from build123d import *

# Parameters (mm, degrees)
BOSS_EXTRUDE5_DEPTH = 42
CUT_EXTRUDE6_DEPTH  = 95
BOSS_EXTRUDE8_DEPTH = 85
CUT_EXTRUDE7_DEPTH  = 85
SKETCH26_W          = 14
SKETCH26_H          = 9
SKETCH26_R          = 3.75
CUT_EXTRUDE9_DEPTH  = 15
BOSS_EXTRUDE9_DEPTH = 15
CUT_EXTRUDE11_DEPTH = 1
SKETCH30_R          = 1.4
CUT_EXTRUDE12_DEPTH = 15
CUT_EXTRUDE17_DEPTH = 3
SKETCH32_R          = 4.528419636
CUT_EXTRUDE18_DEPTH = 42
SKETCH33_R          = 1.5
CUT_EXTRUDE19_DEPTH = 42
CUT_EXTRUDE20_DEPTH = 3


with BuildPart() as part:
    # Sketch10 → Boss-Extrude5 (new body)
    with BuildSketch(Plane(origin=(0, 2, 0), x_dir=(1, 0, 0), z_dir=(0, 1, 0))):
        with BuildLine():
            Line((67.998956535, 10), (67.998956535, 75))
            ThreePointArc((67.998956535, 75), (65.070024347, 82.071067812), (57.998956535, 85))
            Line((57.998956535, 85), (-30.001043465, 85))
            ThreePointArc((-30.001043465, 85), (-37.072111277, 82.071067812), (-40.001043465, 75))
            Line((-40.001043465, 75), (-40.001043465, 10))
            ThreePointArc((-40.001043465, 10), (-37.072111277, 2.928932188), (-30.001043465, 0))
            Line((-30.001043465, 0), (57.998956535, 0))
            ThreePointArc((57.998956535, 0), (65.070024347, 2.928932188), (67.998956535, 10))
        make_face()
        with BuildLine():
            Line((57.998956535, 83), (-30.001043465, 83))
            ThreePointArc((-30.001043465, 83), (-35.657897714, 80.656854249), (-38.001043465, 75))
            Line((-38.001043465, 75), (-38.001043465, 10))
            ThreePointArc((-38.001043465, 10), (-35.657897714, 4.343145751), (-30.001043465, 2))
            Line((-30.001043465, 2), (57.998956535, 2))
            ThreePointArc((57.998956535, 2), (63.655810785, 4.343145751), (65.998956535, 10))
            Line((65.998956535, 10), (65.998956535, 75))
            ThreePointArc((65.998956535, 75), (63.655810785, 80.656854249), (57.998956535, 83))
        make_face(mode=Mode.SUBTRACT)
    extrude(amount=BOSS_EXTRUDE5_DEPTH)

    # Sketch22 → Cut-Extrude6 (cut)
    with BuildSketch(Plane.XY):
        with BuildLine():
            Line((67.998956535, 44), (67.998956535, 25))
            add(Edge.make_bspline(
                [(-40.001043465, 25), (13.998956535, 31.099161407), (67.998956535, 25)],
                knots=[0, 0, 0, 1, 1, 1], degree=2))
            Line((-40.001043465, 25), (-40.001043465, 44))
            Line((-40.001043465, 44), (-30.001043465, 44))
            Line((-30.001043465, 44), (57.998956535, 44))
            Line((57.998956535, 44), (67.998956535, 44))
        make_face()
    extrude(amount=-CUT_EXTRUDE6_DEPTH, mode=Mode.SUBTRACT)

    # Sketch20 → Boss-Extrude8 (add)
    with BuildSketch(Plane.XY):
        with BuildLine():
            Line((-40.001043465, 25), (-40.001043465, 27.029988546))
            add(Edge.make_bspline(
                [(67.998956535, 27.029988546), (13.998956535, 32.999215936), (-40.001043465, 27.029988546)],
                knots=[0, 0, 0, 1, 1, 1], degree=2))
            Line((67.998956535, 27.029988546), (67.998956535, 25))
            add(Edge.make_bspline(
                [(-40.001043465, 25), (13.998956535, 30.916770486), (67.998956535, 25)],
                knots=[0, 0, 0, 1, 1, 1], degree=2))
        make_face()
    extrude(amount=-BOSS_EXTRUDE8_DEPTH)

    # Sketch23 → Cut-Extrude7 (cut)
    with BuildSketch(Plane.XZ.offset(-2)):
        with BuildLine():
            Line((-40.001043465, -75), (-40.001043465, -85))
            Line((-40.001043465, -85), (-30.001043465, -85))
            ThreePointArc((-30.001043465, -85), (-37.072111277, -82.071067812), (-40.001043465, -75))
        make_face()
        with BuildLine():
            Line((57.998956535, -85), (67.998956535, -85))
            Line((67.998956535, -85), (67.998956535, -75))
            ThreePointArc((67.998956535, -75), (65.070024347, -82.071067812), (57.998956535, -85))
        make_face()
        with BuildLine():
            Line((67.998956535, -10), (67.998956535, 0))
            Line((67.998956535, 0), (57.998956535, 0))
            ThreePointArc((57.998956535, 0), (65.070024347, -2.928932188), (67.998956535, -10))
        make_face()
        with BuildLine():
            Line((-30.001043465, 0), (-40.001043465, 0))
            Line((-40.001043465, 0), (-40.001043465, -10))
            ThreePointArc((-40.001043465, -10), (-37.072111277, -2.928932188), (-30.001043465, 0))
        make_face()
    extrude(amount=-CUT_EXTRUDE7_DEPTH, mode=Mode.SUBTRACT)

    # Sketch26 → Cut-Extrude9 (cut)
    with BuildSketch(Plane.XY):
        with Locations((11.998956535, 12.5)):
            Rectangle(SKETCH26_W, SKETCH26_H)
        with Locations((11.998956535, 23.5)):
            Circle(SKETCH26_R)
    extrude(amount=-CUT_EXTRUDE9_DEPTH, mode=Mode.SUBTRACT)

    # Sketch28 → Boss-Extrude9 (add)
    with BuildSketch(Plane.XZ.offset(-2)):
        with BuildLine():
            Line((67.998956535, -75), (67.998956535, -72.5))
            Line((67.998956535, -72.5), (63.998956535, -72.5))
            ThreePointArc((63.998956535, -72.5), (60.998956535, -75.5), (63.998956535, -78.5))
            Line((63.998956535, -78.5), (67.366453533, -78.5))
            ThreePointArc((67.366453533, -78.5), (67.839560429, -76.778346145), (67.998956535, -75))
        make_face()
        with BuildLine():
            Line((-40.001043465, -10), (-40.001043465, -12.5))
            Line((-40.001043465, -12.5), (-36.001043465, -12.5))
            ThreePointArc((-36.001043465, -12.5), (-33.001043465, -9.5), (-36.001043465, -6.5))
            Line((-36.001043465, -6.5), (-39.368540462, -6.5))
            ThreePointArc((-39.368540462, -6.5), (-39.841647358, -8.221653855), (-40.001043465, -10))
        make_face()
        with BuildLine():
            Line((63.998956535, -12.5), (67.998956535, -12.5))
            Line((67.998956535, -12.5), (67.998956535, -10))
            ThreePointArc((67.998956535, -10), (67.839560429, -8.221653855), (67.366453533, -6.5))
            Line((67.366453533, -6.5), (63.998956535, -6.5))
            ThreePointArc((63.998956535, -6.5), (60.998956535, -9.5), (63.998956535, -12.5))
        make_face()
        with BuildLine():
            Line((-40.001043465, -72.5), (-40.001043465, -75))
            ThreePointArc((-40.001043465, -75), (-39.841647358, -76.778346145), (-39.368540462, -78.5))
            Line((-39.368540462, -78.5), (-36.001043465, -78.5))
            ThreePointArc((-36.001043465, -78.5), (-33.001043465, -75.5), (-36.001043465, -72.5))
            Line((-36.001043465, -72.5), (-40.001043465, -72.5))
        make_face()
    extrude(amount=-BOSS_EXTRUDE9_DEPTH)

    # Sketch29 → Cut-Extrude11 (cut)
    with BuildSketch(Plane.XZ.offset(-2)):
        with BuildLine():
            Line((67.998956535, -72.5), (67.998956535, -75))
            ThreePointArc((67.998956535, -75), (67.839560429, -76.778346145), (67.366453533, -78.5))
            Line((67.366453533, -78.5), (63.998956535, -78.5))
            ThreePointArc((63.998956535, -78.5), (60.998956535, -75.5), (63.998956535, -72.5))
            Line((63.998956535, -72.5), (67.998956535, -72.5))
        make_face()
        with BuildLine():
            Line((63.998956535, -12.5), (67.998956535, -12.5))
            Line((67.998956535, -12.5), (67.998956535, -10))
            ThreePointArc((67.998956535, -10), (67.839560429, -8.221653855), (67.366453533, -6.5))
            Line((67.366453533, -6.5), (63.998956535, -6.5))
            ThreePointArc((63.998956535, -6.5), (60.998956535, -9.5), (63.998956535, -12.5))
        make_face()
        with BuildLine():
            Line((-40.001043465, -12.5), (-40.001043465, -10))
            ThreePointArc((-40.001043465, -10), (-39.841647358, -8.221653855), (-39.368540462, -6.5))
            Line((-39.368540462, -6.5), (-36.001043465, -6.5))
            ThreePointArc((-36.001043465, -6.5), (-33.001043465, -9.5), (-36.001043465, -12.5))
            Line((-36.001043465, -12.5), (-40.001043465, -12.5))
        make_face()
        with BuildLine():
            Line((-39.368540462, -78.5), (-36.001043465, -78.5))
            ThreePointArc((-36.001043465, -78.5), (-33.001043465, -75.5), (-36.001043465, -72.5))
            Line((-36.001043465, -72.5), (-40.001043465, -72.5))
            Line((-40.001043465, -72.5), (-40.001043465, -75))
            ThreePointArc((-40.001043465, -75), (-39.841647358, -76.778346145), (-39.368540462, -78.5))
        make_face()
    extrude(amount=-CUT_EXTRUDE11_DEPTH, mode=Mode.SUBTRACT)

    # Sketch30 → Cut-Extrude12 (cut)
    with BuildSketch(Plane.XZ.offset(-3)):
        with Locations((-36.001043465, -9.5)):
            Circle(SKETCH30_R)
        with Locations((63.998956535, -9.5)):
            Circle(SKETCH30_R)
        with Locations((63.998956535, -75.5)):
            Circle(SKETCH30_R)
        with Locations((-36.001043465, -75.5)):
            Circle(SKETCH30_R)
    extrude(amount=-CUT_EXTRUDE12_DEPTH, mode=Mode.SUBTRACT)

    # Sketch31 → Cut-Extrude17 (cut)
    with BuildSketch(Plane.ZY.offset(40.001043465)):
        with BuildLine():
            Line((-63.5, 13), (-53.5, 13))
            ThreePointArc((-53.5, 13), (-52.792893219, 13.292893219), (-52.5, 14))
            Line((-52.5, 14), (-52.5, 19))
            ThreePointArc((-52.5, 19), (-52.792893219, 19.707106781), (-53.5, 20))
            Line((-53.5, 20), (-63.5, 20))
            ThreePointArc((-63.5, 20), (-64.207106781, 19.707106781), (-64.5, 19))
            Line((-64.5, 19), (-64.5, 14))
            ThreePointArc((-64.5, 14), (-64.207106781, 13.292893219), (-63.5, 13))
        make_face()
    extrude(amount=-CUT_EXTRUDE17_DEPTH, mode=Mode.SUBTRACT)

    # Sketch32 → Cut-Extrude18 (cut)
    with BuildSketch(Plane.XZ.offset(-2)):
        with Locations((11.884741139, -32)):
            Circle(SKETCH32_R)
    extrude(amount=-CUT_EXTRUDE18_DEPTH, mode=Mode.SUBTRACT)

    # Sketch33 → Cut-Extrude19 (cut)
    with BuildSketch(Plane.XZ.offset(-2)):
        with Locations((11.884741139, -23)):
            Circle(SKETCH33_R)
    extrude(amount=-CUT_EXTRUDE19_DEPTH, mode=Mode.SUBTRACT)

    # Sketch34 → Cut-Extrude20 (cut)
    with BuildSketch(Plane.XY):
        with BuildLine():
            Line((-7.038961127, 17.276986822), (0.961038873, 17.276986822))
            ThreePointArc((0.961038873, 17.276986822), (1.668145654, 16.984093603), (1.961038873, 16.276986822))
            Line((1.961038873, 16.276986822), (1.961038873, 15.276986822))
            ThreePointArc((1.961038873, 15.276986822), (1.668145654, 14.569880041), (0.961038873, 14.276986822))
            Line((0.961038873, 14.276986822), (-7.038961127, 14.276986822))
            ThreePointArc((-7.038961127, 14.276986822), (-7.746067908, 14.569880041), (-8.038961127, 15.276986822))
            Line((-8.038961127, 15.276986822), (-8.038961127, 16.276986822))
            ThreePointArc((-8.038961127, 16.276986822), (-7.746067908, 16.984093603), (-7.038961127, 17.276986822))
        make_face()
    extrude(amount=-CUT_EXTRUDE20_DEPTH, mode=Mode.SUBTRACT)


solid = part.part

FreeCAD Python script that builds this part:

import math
import FreeCAD as App
import Part
import Sketcher

doc = App.newDocument("Part")
params = doc.addObject("Spreadsheet::Sheet", "Params")
for row, (alias, value) in enumerate([
    ("sketch1_radius", "10 mm"),
    ("sketch1_radius2", "8 mm"),
    ("sketch1_width", "88 mm"),
    ("sketch1_height", "65 mm"),
    ("pad1_length", "42 mm"),
    ("sketch2_height", "19 mm"),
    ("pocket1_length", "95 mm"),
    ("pad2_length", "85 mm"),
    ("sketch4_radius", "10 mm"),
    ("pocket2_length", "85 mm"),
    ("sketch5_diameter", "7.5 mm"),
    ("sketch5_width", "14 mm"),
    ("sketch5_height", "9 mm"),
    ("pocket3_length", "15 mm"),
    ("sketch6_radius", "3 mm"),
    ("sketch6_radius2", "10 mm"),
    ("sketch6_width", "4 mm"),
    ("sketch6_height", "2.5 mm"),
    ("pad3_length", "15 mm"),
    ("sketch7_radius", "3 mm"),
    ("sketch7_radius2", "10 mm"),
    ("sketch7_width", "4 mm"),
    ("sketch7_height", "2.5 mm"),
    ("pocket4_length", "1 mm"),
    ("sketch8_diameter", "2.8 mm"),
    ("pocket5_length", "15 mm"),
    ("sketch9_radius", "1 mm"),
    ("sketch9_width", "5 mm"),
    ("sketch9_height", "10 mm"),
    ("pocket6_length", "3 mm"),
    ("pocket7_length", "42 mm"),
    ("sketch11_diameter", "3 mm"),
    ("pocket8_length", "42 mm"),
    ("sketch12_radius", "1 mm"),
    ("sketch12_width", "8 mm"),
    ("sketch12_height", "1 mm"),
    ("pocket9_length", "3 mm"),
], start=1):
    params.set(f"A{row}", alias)
    params.set(f"B{row}", "=" + value)
    params.setAlias(f"B{row}", alias)

body = doc.addObject("PartDesign::Body", "Body")

# Sketch on XZ plane
sketch1 = body.newObject("Sketcher::SketchObject", "Sketch")
sketch1.AttachmentSupport = (doc.getObject("XZ_Plane"), [""])
sketch1.MapMode = "FlatFace"
sketch1.AttachmentOffset = App.Placement(App.Vector(0, 0, -2), App.Rotation())
sketch1.addGeometry(Part.LineSegment(App.Vector(67.998957, -10, 0), App.Vector(67.998957, -75, 0)), False)
sketch1.addGeometry(Part.ArcOfCircle(Part.Circle(App.Vector(57.998957, -75, 0), App.Vector(0, 0, 1), 10), math.radians(-90), math.radians(0)), False)
sketch1.addGeometry(Part.LineSegment(App.Vector(57.998957, -85, 0), App.Vector(-30.001043, -85, 0)), False)
sketch1.addGeometry(Part.ArcOfCircle(Part.Circle(App.Vector(-30.001043, -75, 0), App.Vector(0, 0, 1), 10), math.radians(180), math.radians(270)), False)
sketch1.addGeometry(Part.LineSegment(App.Vector(-40.001043, -75, 0), App.Vector(-40.001043, -10, 0)), False)
sketch1.addGeometry(Part.ArcOfCircle(Part.Circle(App.Vector(-30.001043, -10, 0), App.Vector(0, 0, 1), 10), math.radians(90), math.radians(180)), False)
sketch1.addGeometry(Part.LineSegment(App.Vector(-30.001043, 0, 0), App.Vector(57.998957, 0, 0)), False)
sketch1.addGeometry(Part.ArcOfCircle(Part.Circle(App.Vector(57.998957, -10, 0), App.Vector(0, 0, 1), 10), math.radians(0), math.radians(90)), False)
sketch1.addGeometry(Part.LineSegment(App.Vector(-30.001043, -83, 0), App.Vector(57.998957, -83, 0)), False)
sketch1.addGeometry(Part.ArcOfCircle(Part.Circle(App.Vector(57.998957, -75, 0), App.Vector(0, 0, 1), 8), math.radians(-90), math.radians(0)), False)
sketch1.addGeometry(Part.LineSegment(App.Vector(65.998957, -75, 0), App.Vector(65.998957, -10, 0)), False)
sketch1.addGeometry(Part.ArcOfCircle(Part.Circle(App.Vector(57.998957, -10, 0), App.Vector(0, 0, 1), 8), math.radians(0), math.radians(90)), False)
sketch1.addGeometry(Part.LineSegment(App.Vector(57.998957, -2, 0), App.Vector(-30.001043, -2, 0)), False)
sketch1.addGeometry(Part.ArcOfCircle(Part.Circle(App.Vector(-30.001043, -10, 0), App.Vector(0, 0, 1), 8), math.radians(90), math.radians(180)), False)
sketch1.addGeometry(Part.LineSegment(App.Vector(-38.001043, -10, 0), App.Vector(-38.001043, -75, 0)), False)
sketch1.addGeometry(Part.ArcOfCircle(Part.Circle(App.Vector(-30.001043, -75, 0), App.Vector(0, 0, 1), 8), math.radians(-180), math.radians(-90)), False)
sketch1.addConstraint(Sketcher.Constraint("Tangent", 0, 2, 1, 2))
sketch1.addConstraint(Sketcher.Constraint("Tangent", 1, 1, 2, 1))
sketch1.addConstraint(Sketcher.Constraint("Tangent", 2, 2, 3, 2))
sketch1.addConstraint(Sketcher.Constraint("Tangent", 3, 1, 4, 1))
sketch1.addConstraint(Sketcher.Constraint("Tangent", 4, 2, 5, 2))
sketch1.addConstraint(Sketcher.Constraint("Tangent", 5, 1, 6, 1))
sketch1.addConstraint(Sketcher.Constraint("Tangent", 6, 2, 7, 2))
sketch1.addConstraint(Sketcher.Constraint("Tangent", 7, 1, 0, 1))
sketch1.addConstraint(Sketcher.Constraint("Tangent", 8, 2, 9, 1))
sketch1.addConstraint(Sketcher.Constraint("Tangent", 9, 2, 10, 1))
sketch1.addConstraint(Sketcher.Constraint("Tangent", 10, 2, 11, 1))
sketch1.addConstraint(Sketcher.Constraint("Tangent", 11, 2, 12, 1))
sketch1.addConstraint(Sketcher.Constraint("Tangent", 12, 2, 13, 1))
sketch1.addConstraint(Sketcher.Constraint("Tangent", 13, 2, 14, 1))
sketch1.addConstraint(Sketcher.Constraint("Tangent", 14, 2, 15, 1))
sketch1.addConstraint(Sketcher.Constraint("Tangent", 15, 2, 8, 1))
sketch1.addConstraint(Sketcher.Constraint("Vertical", 0))
sketch1.addConstraint(Sketcher.Constraint("Horizontal", 2))
sketch1.addConstraint(Sketcher.Constraint("Vertical", 4))
sketch1.addConstraint(Sketcher.Constraint("Horizontal", 6))
sketch1.addConstraint(Sketcher.Constraint("Horizontal", 8))
sketch1.addConstraint(Sketcher.Constraint("Vertical", 10))
sketch1.addConstraint(Sketcher.Constraint("Horizontal", 12))
sketch1.addConstraint(Sketcher.Constraint("Vertical", 14))
sketch1.addConstraint(Sketcher.Constraint("Coincident", 9, 3, 1, 3))
sketch1.addConstraint(Sketcher.Constraint("Coincident", 11, 3, 7, 3))
sketch1.addConstraint(Sketcher.Constraint("Coincident", 13, 3, 5, 3))
sketch1.addConstraint(Sketcher.Constraint("Equal", 1, 3))
sketch1.addConstraint(Sketcher.Constraint("Equal", 3, 5))
sketch1.addConstraint(Sketcher.Constraint("Equal", 5, 7))
sketch1.addConstraint(Sketcher.Constraint("Equal", 13, 15))
sketch1.addConstraint(Sketcher.Constraint("PointOnObject", 5, 1, -1))
sketch1.addConstraint(Sketcher.Constraint("Radius", 1, 10.0))
sketch1.addConstraint(Sketcher.Constraint("Radius", 9, 8.0))
sketch1.addConstraint(Sketcher.Constraint("DistanceX", 2, 2, 2, 1, 88.0))
sketch1.addConstraint(Sketcher.Constraint("DistanceY", 0, 2, 0, 1, 65.0))
sketch1.addConstraint(Sketcher.Constraint("DistanceX", -1, 1, 1, 3, 57.998957))
sketch1.setExpression("Constraints[32]", "Params.sketch1_radius")
sketch1.setExpression("Constraints[33]", "Params.sketch1_radius2")
sketch1.setExpression("Constraints[34]", "Params.sketch1_width")
sketch1.setExpression("Constraints[35]", "Params.sketch1_height")
pad1 = body.newObject("PartDesign::Pad", "Pad")
pad1.Profile = sketch1
pad1.setExpression("Length", "Params.pad1_length")
pad1.Reversed = True

# Sketch on XY plane
sketch2 = body.newObject("Sketcher::SketchObject", "Sketch001")
sketch2.AttachmentSupport = (doc.getObject("XY_Plane"), [""])
sketch2.MapMode = "FlatFace"
sketch2.addGeometry(Part.LineSegment(App.Vector(67.998957, 25, 0), App.Vector(67.998957, 44, 0)), False)
sketch2.addGeometry(Part.LineSegment(App.Vector(67.998957, 44, 0), App.Vector(-40.001043, 44, 0)), False)
sketch2.addGeometry(Part.LineSegment(App.Vector(-40.001043, 44, 0), App.Vector(-40.001043, 25, 0)), False)
sketch2.addGeometry(Part.BSplineCurve([App.Vector(-40.001043, 25, 0), App.Vector(13.998957, 31.099161, 0), App.Vector(67.998957, 25, 0)], [3, 3], [0, 1], False, 2, [1, 1, 1], False), False)
sketch2.addConstraint(Sketcher.Constraint("Block", 3))
sketch2.addConstraint(Sketcher.Constraint("Coincident", 0, 2, 1, 1))
sketch2.addConstraint(Sketcher.Constraint("Coincident", 1, 2, 2, 1))
sketch2.addConstraint(Sketcher.Constraint("Coincident", 2, 2, 3, 1))
sketch2.addConstraint(Sketcher.Constraint("Coincident", 3, 2, 0, 1))
sketch2.addConstraint(Sketcher.Constraint("Vertical", 0))
sketch2.addConstraint(Sketcher.Constraint("Horizontal", 1))
sketch2.addConstraint(Sketcher.Constraint("Vertical", 2))
sketch2.addConstraint(Sketcher.Constraint("DistanceY", 0, 1, 0, 2, 19.0))
sketch2.setExpression("Constraints[8]", "Params.sketch2_height")
pocket1 = body.newObject("PartDesign::Pocket", "Pocket")
pocket1.Profile = sketch2
pocket1.setExpression("Length", "Params.pocket1_length")

# Sketch on XY plane
sketch3 = body.newObject("Sketcher::SketchObject", "Sketch002")
sketch3.AttachmentSupport = (doc.getObject("XY_Plane"), [""])
sketch3.MapMode = "FlatFace"
sketch3.addGeometry(Part.LineSegment(App.Vector(-40.001043, 27.029989, 0), App.Vector(-40.001043, 25, 0)), False)
sketch3.addGeometry(Part.BSplineCurve([App.Vector(-40.001043, 25, 0), App.Vector(13.998957, 30.91677, 0), App.Vector(67.998957, 25, 0)], [3, 3], [0, 1], False, 2, [1, 1, 1], False), False)
sketch3.addGeometry(Part.LineSegment(App.Vector(67.998957, 25, 0), App.Vector(67.998957, 27.029989, 0)), False)
sketch3.addGeometry(Part.BSplineCurve([App.Vector(67.998957, 27.029989, 0), App.Vector(13.998957, 32.999216, 0), App.Vector(-40.001043, 27.029989, 0)], [3, 3], [0, 1], False, 2, [1, 1, 1], False), False)
sketch3.addConstraint(Sketcher.Constraint("Block", 1))
sketch3.addConstraint(Sketcher.Constraint("Block", 3))
sketch3.addConstraint(Sketcher.Constraint("Coincident", 0, 2, 1, 1))
sketch3.addConstraint(Sketcher.Constraint("Coincident", 1, 2, 2, 1))
sketch3.addConstraint(Sketcher.Constraint("Coincident", 2, 2, 3, 1))
sketch3.addConstraint(Sketcher.Constraint("Coincident", 3, 2, 0, 1))
pad2 = body.newObject("PartDesign::Pad", "Pad001")
pad2.Profile = sketch3
pad2.setExpression("Length", "Params.pad2_length")
pad2.Reversed = True

# Sketch on XZ plane
sketch4 = body.newObject("Sketcher::SketchObject", "Sketch003")
sketch4.AttachmentSupport = (doc.getObject("XZ_Plane"), [""])
sketch4.MapMode = "FlatFace"
sketch4.AttachmentOffset = App.Placement(App.Vector(0, 0, -2), App.Rotation())
sketch4.addGeometry(Part.LineSegment(App.Vector(-40.001043, -75, 0), App.Vector(-40.001043, -85, 0)), False)
sketch4.addGeometry(Part.LineSegment(App.Vector(-40.001043, -85, 0), App.Vector(-30.001043, -85, 0)), False)
sketch4.addGeometry(Part.ArcOfCircle(Part.Circle(App.Vector(-30.001043, -75, 0), App.Vector(0, 0, 1), 10), math.radians(180), math.radians(270)), False)
sketch4.addGeometry(Part.LineSegment(App.Vector(57.998957, -85, 0), App.Vector(67.998957, -85, 0)), False)
sketch4.addGeometry(Part.LineSegment(App.Vector(67.998957, -85, 0), App.Vector(67.998957, -75, 0)), False)
sketch4.addGeometry(Part.ArcOfCircle(Part.Circle(App.Vector(57.998957, -75, 0), App.Vector(0, 0, 1), 10), math.radians(-90), math.radians(0)), False)
sketch4.addGeometry(Part.LineSegment(App.Vector(67.998957, -10, 0), App.Vector(67.998957, 0, 0)), False)
sketch4.addGeometry(Part.LineSegment(App.Vector(67.998957, 0, 0), App.Vector(57.998957, 0, 0)), False)
sketch4.addGeometry(Part.ArcOfCircle(Part.Circle(App.Vector(57.998957, -10, 0), App.Vector(0, 0, 1), 10), math.radians(0), math.radians(90)), False)
sketch4.addGeometry(Part.LineSegment(App.Vector(-30.001043, 0, 0), App.Vector(-40.001043, 0, 0)), False)
sketch4.addGeometry(Part.LineSegment(App.Vector(-40.001043, 0, 0), App.Vector(-40.001043, -10, 0)), False)
sketch4.addGeometry(Part.ArcOfCircle(Part.Circle(App.Vector(-30.001043, -10, 0), App.Vector(0, 0, 1), 10), math.radians(90), math.radians(180)), False)
sketch4.addConstraint(Sketcher.Constraint("Coincident", 0, 2, 1, 1))
sketch4.addConstraint(Sketcher.Constraint("Tangent", 1, 2, 2, 2))
sketch4.addConstraint(Sketcher.Constraint("Tangent", 2, 1, 0, 1))
sketch4.addConstraint(Sketcher.Constraint("Coincident", 3, 2, 4, 1))
sketch4.addConstraint(Sketcher.Constraint("Tangent", 4, 2, 5, 2))
sketch4.addConstraint(Sketcher.Constraint("Tangent", 5, 1, 3, 1))
sketch4.addConstraint(Sketcher.Constraint("Coincident", 6, 2, 7, 1))
sketch4.addConstraint(Sketcher.Constraint("Tangent", 7, 2, 8, 2))
sketch4.addConstraint(Sketcher.Constraint("Tangent", 8, 1, 6, 1))
sketch4.addConstraint(Sketcher.Constraint("Coincident", 9, 2, 10, 1))
sketch4.addConstraint(Sketcher.Constraint("Tangent", 10, 2, 11, 2))
sketch4.addConstraint(Sketcher.Constraint("Tangent", 11, 1, 9, 1))
sketch4.addConstraint(Sketcher.Constraint("Vertical", 0))
sketch4.addConstraint(Sketcher.Constraint("Horizontal", 1))
sketch4.addConstraint(Sketcher.Constraint("Horizontal", 3))
sketch4.addConstraint(Sketcher.Constraint("Vertical", 4))
sketch4.addConstraint(Sketcher.Constraint("Vertical", 6))
sketch4.addConstraint(Sketcher.Constraint("Horizontal", 7))
sketch4.addConstraint(Sketcher.Constraint("Horizontal", 9))
sketch4.addConstraint(Sketcher.Constraint("Vertical", 10))
sketch4.addConstraint(Sketcher.Constraint("Equal", 2, 5))
sketch4.addConstraint(Sketcher.Constraint("Equal", 5, 8))
sketch4.addConstraint(Sketcher.Constraint("Equal", 8, 11))
sketch4.addConstraint(Sketcher.Constraint("PointOnObject", 6, 2, -1))
sketch4.addConstraint(Sketcher.Constraint("PointOnObject", 9, 2, -1))
sketch4.addConstraint(Sketcher.Constraint("Horizontal", 2, 3, 5, 3))
sketch4.addConstraint(Sketcher.Constraint("Vertical", 5, 3, 8, 3))
sketch4.addConstraint(Sketcher.Constraint("Vertical", 2, 3, 11, 3))
sketch4.addConstraint(Sketcher.Constraint("Radius", 2, 10.0))
sketch4.addConstraint(Sketcher.Constraint("DistanceY", 2, 3, -1, 1, 75.0))
sketch4.addConstraint(Sketcher.Constraint("DistanceX", 2, 3, 5, 3, 88.0))
sketch4.addConstraint(Sketcher.Constraint("DistanceX", 2, 3, -1, 1, 30.001043))
sketch4.setExpression("Constraints[28]", "Params.sketch4_radius")
pocket2 = body.newObject("PartDesign::Pocket", "Pocket001")
pocket2.Profile = sketch4
pocket2.setExpression("Length", "Params.pocket2_length")

# Sketch on XY plane
sketch5 = body.newObject("Sketcher::SketchObject", "Sketch004")
sketch5.AttachmentSupport = (doc.getObject("XY_Plane"), [""])
sketch5.MapMode = "FlatFace"
sketch5.addGeometry(Part.LineSegment(App.Vector(4.998957, 17, 0), App.Vector(4.998957, 8, 0)), False)
sketch5.addGeometry(Part.LineSegment(App.Vector(4.998957, 8, 0), App.Vector(18.998957, 8, 0)), False)
sketch5.addGeometry(Part.LineSegment(App.Vector(18.998957, 8, 0), App.Vector(18.998957, 17, 0)), False)
sketch5.addGeometry(Part.LineSegment(App.Vector(18.998957, 17, 0), App.Vector(4.998957, 17, 0)), False)
sketch5.addGeometry(Part.Circle(App.Vector(11.998957, 23.5, 0), App.Vector(0, 0, 1), 3.75), False)
sketch5.addConstraint(Sketcher.Constraint("Coincident", 0, 2, 1, 1))
sketch5.addConstraint(Sketcher.Constraint("Coincident", 1, 2, 2, 1))
sketch5.addConstraint(Sketcher.Constraint("Coincident", 2, 2, 3, 1))
sketch5.addConstraint(Sketcher.Constraint("Coincident", 3, 2, 0, 1))
sketch5.addConstraint(Sketcher.Constraint("Vertical", 0))
sketch5.addConstraint(Sketcher.Constraint("Horizontal", 1))
sketch5.addConstraint(Sketcher.Constraint("Vertical", 2))
sketch5.addConstraint(Sketcher.Constraint("Horizontal", 3))
sketch5.addConstraint(Sketcher.Constraint("Diameter", 4, 7.5))
sketch5.addConstraint(Sketcher.Constraint("DistanceX", 1, 1, 1, 2, 14.0))
sketch5.addConstraint(Sketcher.Constraint("DistanceY", 0, 2, 0, 1, 9.0))
sketch5.addConstraint(Sketcher.Constraint("DistanceY", -1, 1, 0, 2, 8.0))
sketch5.addConstraint(Sketcher.Constraint("DistanceX", 0, 2, 4, 3, 7.0))
sketch5.addConstraint(Sketcher.Constraint("DistanceY", -1, 1, 4, 3, 23.5))
sketch5.addConstraint(Sketcher.Constraint("DistanceX", -1, 1, 4, 3, 11.998957))
sketch5.setExpression("Constraints[8]", "Params.sketch5_diameter")
sketch5.setExpression("Constraints[9]", "Params.sketch5_width")
sketch5.setExpression("Constraints[10]", "Params.sketch5_height")
pocket3 = body.newObject("PartDesign::Pocket", "Pocket002")
pocket3.Profile = sketch5
pocket3.setExpression("Length", "Params.pocket3_length")

# Sketch on XZ plane
sketch6 = body.newObject("Sketcher::SketchObject", "Sketch005")
sketch6.AttachmentSupport = (doc.getObject("XZ_Plane"), [""])
sketch6.MapMode = "FlatFace"
sketch6.AttachmentOffset = App.Placement(App.Vector(0, 0, -2), App.Rotation())
sketch6.addGeometry(Part.LineSegment(App.Vector(67.998957, -75, 0), App.Vector(67.998957, -72.5, 0)), False)
sketch6.addGeometry(Part.LineSegment(App.Vector(67.998957, -72.5, 0), App.Vector(63.998957, -72.5, 0)), False)
sketch6.addGeometry(Part.ArcOfCircle(Part.Circle(App.Vector(63.998957, -75.5, 0), App.Vector(0, 0, 1), 3), math.radians(90), math.radians(270)), False)
sketch6.addGeometry(Part.LineSegment(App.Vector(63.998957, -78.5, 0), App.Vector(67.366454, -78.5, 0)), False)
sketch6.addGeometry(Part.ArcOfCircle(Part.Circle(App.Vector(57.998957, -75, 0), App.Vector(0, 0, 1), 10), math.radians(-20.487315), math.radians(0)), False)
sketch6.addGeometry(Part.LineSegment(App.Vector(-40.001043, -10, 0), App.Vector(-40.001043, -12.5, 0)), False)
sketch6.addGeometry(Part.LineSegment(App.Vector(-40.001043, -12.5, 0), App.Vector(-36.001043, -12.5, 0)), False)
sketch6.addGeometry(Part.ArcOfCircle(Part.Circle(App.Vector(-36.001043, -9.5, 0), App.Vector(0, 0, 1), 3), math.radians(-90), math.radians(90)), False)
sketch6.addGeometry(Part.LineSegment(App.Vector(-36.001043, -6.5, 0), App.Vector(-39.36854, -6.5, 0)), False)
sketch6.addGeometry(Part.ArcOfCircle(Part.Circle(App.Vector(-30.001043, -10, 0), App.Vector(0, 0, 1), 10), math.radians(159.512685), math.radians(180)), False)
sketch6.addGeometry(Part.LineSegment(App.Vector(63.998957, -12.5, 0), App.Vector(67.998957, -12.5, 0)), False)
sketch6.addGeometry(Part.LineSegment(App.Vector(67.998957, -12.5, 0), App.Vector(67.998957, -10, 0)), False)
sketch6.addGeometry(Part.ArcOfCircle(Part.Circle(App.Vector(57.998957, -10, 0), App.Vector(0, 0, 1), 10), math.radians(0), math.radians(20.487315)), False)
sketch6.addGeometry(Part.LineSegment(App.Vector(67.366454, -6.5, 0), App.Vector(63.998957, -6.5, 0)), False)
sketch6.addGeometry(Part.ArcOfCircle(Part.Circle(App.Vector(63.998957, -9.5, 0), App.Vector(0, 0, 1), 3), math.radians(90), math.radians(270)), False)
sketch6.addGeometry(Part.LineSegment(App.Vector(-40.001043, -72.5, 0), App.Vector(-40.001043, -75, 0)), False)
sketch6.addGeometry(Part.ArcOfCircle(Part.Circle(App.Vector(-30.001043, -75, 0), App.Vector(0, 0, 1), 10), math.radians(-180), math.radians(-159.512685)), False)
sketch6.addGeometry(Part.LineSegment(App.Vector(-39.36854, -78.5, 0), App.Vector(-36.001043, -78.5, 0)), False)
sketch6.addGeometry(Part.ArcOfCircle(Part.Circle(App.Vector(-36.001043, -75.5, 0), App.Vector(0, 0, 1), 3), math.radians(-90), math.radians(90)), False)
sketch6.addGeometry(Part.LineSegment(App.Vector(-36.001043, -72.5, 0), App.Vector(-40.001043, -72.5, 0)), False)
sketch6.addConstraint(Sketcher.Constraint("Coincident", 0, 2, 1, 1))
sketch6.addConstraint(Sketcher.Constraint("Tangent", 1, 2, 2, 1))
sketch6.addConstraint(Sketcher.Constraint("Tangent", 2, 2, 3, 1))
sketch6.addConstraint(Sketcher.Constraint("Coincident", 3, 2, 4, 1))
sketch6.addConstraint(Sketcher.Constraint("Tangent", 4, 2, 0, 1))
sketch6.addConstraint(Sketcher.Constraint("Coincident", 5, 2, 6, 1))
sketch6.addConstraint(Sketcher.Constraint("Tangent", 6, 2, 7, 1))
sketch6.addConstraint(Sketcher.Constraint("Tangent", 7, 2, 8, 1))
sketch6.addConstraint(Sketcher.Constraint("Coincident", 8, 2, 9, 1))
sketch6.addConstraint(Sketcher.Constraint("Tangent", 9, 2, 5, 1))
sketch6.addConstraint(Sketcher.Constraint("Coincident", 10, 2, 11, 1))
sketch6.addConstraint(Sketcher.Constraint("Tangent", 11, 2, 12, 1))
sketch6.addConstraint(Sketcher.Constraint("Coincident", 12, 2, 13, 1))
sketch6.addConstraint(Sketcher.Constraint("Tangent", 13, 2, 14, 1))
sketch6.addConstraint(Sketcher.Constraint("Tangent", 14, 2, 10, 1))
sketch6.addConstraint(Sketcher.Constraint("Tangent", 15, 2, 16, 1))
sketch6.addConstraint(Sketcher.Constraint("Coincident", 16, 2, 17, 1))
sketch6.addConstraint(Sketcher.Constraint("Tangent", 17, 2, 18, 1))
sketch6.addConstraint(Sketcher.Constraint("Tangent", 18, 2, 19, 1))
sketch6.addConstraint(Sketcher.Constraint("Coincident", 19, 2, 15, 1))
sketch6.addConstraint(Sketcher.Constraint("Vertical", 0))
sketch6.addConstraint(Sketcher.Constraint("Horizontal", 1))
sketch6.addConstraint(Sketcher.Constraint("Horizontal", 3))
sketch6.addConstraint(Sketcher.Constraint("Vertical", 5))
sketch6.addConstraint(Sketcher.Constraint("Horizontal", 6))
sketch6.addConstraint(Sketcher.Constraint("Horizontal", 8))
sketch6.addConstraint(Sketcher.Constraint("Horizontal", 10))
sketch6.addConstraint(Sketcher.Constraint("Vertical", 11))
sketch6.addConstraint(Sketcher.Constraint("Horizontal", 13))
sketch6.addConstraint(Sketcher.Constraint("Vertical", 15))
sketch6.addConstraint(Sketcher.Constraint("Horizontal", 17))
sketch6.addConstraint(Sketcher.Constraint("Horizontal", 19))
sketch6.addConstraint(Sketcher.Constraint("Equal", 2, 7))
sketch6.addConstraint(Sketcher.Constraint("Equal", 4, 9))
sketch6.addConstraint(Sketcher.Constraint("Equal", 9, 12))
sketch6.addConstraint(Sketcher.Constraint("Equal", 7, 14))
sketch6.addConstraint(Sketcher.Constraint("Equal", 12, 16))
sketch6.addConstraint(Sketcher.Constraint("Equal", 14, 18))
sketch6.addConstraint(Sketcher.Constraint("Horizontal", 9, 3, 12, 3))
sketch6.addConstraint(Sketcher.Constraint("Horizontal", 7, 3, 14, 3))
sketch6.addConstraint(Sketcher.Constraint("Horizontal", 4, 3, 16, 3))
sketch6.addConstraint(Sketcher.Constraint("Horizontal", 2, 3, 18, 3))
sketch6.addConstraint(Sketcher.Constraint("Vertical", 4, 3, 12, 3))
sketch6.addConstraint(Sketcher.Constraint("Vertical", 2, 3, 14, 3))
sketch6.addConstraint(Sketcher.Constraint("Vertical", 9, 3, 16, 3))
sketch6.addConstraint(Sketcher.Constraint("Vertical", 7, 3, 18, 3))
sketch6.addConstraint(Sketcher.Constraint("Vertical", 3, 2, 12, 2))
sketch6.addConstraint(Sketcher.Constraint("Equal", 1, 6))
sketch6.addConstraint(Sketcher.Constraint("Radius", 2, 3.0))
sketch6.addConstraint(Sketcher.Constraint("Radius", 4, 10.0))
sketch6.addConstraint(Sketcher.Constraint("DistanceX", 1, 2, 1, 1, 4.0))
sketch6.addConstraint(Sketcher.Constraint("DistanceY", 0, 1, 0, 2, 2.5))
sketch6.addConstraint(Sketcher.Constraint("DistanceY", 4, 3, -1, 1, 75.0))
sketch6.addConstraint(Sketcher.Constraint("DistanceY", 9, 3, -1, 1, 10.0))
sketch6.addConstraint(Sketcher.Constraint("DistanceX", 7, 3, 4, 3, 94.0))
sketch6.addConstraint(Sketcher.Constraint("DistanceX", 8, 2, -1, 1, 39.36854))
sketch6.setExpression("Constraints[48]", "Params.sketch6_radius")
sketch6.setExpression("Constraints[49]", "Params.sketch6_radius2")
sketch6.setExpression("Constraints[50]", "Params.sketch6_width")
sketch6.setExpression("Constraints[51]", "Params.sketch6_height")
pad3 = body.newObject("PartDesign::Pad", "Pad002")
pad3.Profile = sketch6
pad3.setExpression("Length", "Params.pad3_length")
pad3.Reversed = True

# Sketch on XZ plane
sketch7 = body.newObject("Sketcher::SketchObject", "Sketch006")
sketch7.AttachmentSupport = (doc.getObject("XZ_Plane"), [""])
sketch7.MapMode = "FlatFace"
sketch7.AttachmentOffset = App.Placement(App.Vector(0, 0, -2), App.Rotation())
sketch7.addGeometry(Part.LineSegment(App.Vector(67.998957, -75, 0), App.Vector(67.998957, -72.5, 0)), False)
sketch7.addGeometry(Part.LineSegment(App.Vector(67.998957, -72.5, 0), App.Vector(63.998957, -72.5, 0)), False)
sketch7.addGeometry(Part.ArcOfCircle(Part.Circle(App.Vector(63.998957, -75.5, 0), App.Vector(0, 0, 1), 3), math.radians(90), math.radians(270)), False)
sketch7.addGeometry(Part.LineSegment(App.Vector(63.998957, -78.5, 0), App.Vector(67.366454, -78.5, 0)), False)
sketch7.addGeometry(Part.ArcOfCircle(Part.Circle(App.Vector(57.998957, -75, 0), App.Vector(0, 0, 1), 10), math.radians(-20.487315), math.radians(0)), False)
sketch7.addGeometry(Part.LineSegment(App.Vector(63.998957, -12.5, 0), App.Vector(67.998957, -12.5, 0)), False)
sketch7.addGeometry(Part.LineSegment(App.Vector(67.998957, -12.5, 0), App.Vector(67.998957, -10, 0)), False)
sketch7.addGeometry(Part.ArcOfCircle(Part.Circle(App.Vector(57.998957, -10, 0), App.Vector(0, 0, 1), 10), math.radians(0), math.radians(20.487315)), False)
sketch7.addGeometry(Part.LineSegment(App.Vector(67.366454, -6.5, 0), App.Vector(63.998957, -6.5, 0)), False)
sketch7.addGeometry(Part.ArcOfCircle(Part.Circle(App.Vector(63.998957, -9.5, 0), App.Vector(0, 0, 1), 3), math.radians(90), math.radians(270)), False)
sketch7.addGeometry(Part.LineSegment(App.Vector(-40.001043, -10, 0), App.Vector(-40.001043, -12.5, 0)), False)
sketch7.addGeometry(Part.LineSegment(App.Vector(-40.001043, -12.5, 0), App.Vector(-36.001043, -12.5, 0)), False)
sketch7.addGeometry(Part.ArcOfCircle(Part.Circle(App.Vector(-36.001043, -9.5, 0), App.Vector(0, 0, 1), 3), math.radians(-90), math.radians(90)), False)
sketch7.addGeometry(Part.LineSegment(App.Vector(-36.001043, -6.5, 0), App.Vector(-39.36854, -6.5, 0)), False)
sketch7.addGeometry(Part.ArcOfCircle(Part.Circle(App.Vector(-30.001043, -10, 0), App.Vector(0, 0, 1), 10), math.radians(159.512685), math.radians(180)), False)
sketch7.addGeometry(Part.LineSegment(App.Vector(-39.36854, -78.5, 0), App.Vector(-36.001043, -78.5, 0)), False)
sketch7.addGeometry(Part.ArcOfCircle(Part.Circle(App.Vector(-36.001043, -75.5, 0), App.Vector(0, 0, 1), 3), math.radians(-90), math.radians(90)), False)
sketch7.addGeometry(Part.LineSegment(App.Vector(-36.001043, -72.5, 0), App.Vector(-40.001043, -72.5, 0)), False)
sketch7.addGeometry(Part.LineSegment(App.Vector(-40.001043, -72.5, 0), App.Vector(-40.001043, -75, 0)), False)
sketch7.addGeometry(Part.ArcOfCircle(Part.Circle(App.Vector(-30.001043, -75, 0), App.Vector(0, 0, 1), 10), math.radians(-180), math.radians(-159.512685)), False)
sketch7.addConstraint(Sketcher.Constraint("Coincident", 0, 2, 1, 1))
sketch7.addConstraint(Sketcher.Constraint("Tangent", 1, 2, 2, 1))
sketch7.addConstraint(Sketcher.Constraint("Tangent", 2, 2, 3, 1))
sketch7.addConstraint(Sketcher.Constraint("Coincident", 3, 2, 4, 1))
sketch7.addConstraint(Sketcher.Constraint("Tangent", 4, 2, 0, 1))
sketch7.addConstraint(Sketcher.Constraint("Coincident", 5, 2, 6, 1))
sketch7.addConstraint(Sketcher.Constraint("Tangent", 6, 2, 7, 1))
sketch7.addConstraint(Sketcher.Constraint("Coincident", 7, 2, 8, 1))
sketch7.addConstraint(Sketcher.Constraint("Tangent", 8, 2, 9, 1))
sketch7.addConstraint(Sketcher.Constraint("Tangent", 9, 2, 5, 1))
sketch7.addConstraint(Sketcher.Constraint("Coincident", 10, 2, 11, 1))
sketch7.addConstraint(Sketcher.Constraint("Tangent", 11, 2, 12, 1))
sketch7.addConstraint(Sketcher.Constraint("Tangent", 12, 2, 13, 1))
sketch7.addConstraint(Sketcher.Constraint("Coincident", 13, 2, 14, 1))
sketch7.addConstraint(Sketcher.Constraint("Tangent", 14, 2, 10, 1))
sketch7.addConstraint(Sketcher.Constraint("Tangent", 15, 2, 16, 1))
sketch7.addConstraint(Sketcher.Constraint("Tangent", 16, 2, 17, 1))
sketch7.addConstraint(Sketcher.Constraint("Coincident", 17, 2, 18, 1))
sketch7.addConstraint(Sketcher.Constraint("Tangent", 18, 2, 19, 1))
sketch7.addConstraint(Sketcher.Constraint("Coincident", 19, 2, 15, 1))
sketch7.addConstraint(Sketcher.Constraint("Vertical", 0))
sketch7.addConstraint(Sketcher.Constraint("Horizontal", 1))
sketch7.addConstraint(Sketcher.Constraint("Horizontal", 3))
sketch7.addConstraint(Sketcher.Constraint("Horizontal", 5))
sketch7.addConstraint(Sketcher.Constraint("Vertical", 6))
sketch7.addConstraint(Sketcher.Constraint("Horizontal", 8))
sketch7.addConstraint(Sketcher.Constraint("Vertical", 10))
sketch7.addConstraint(Sketcher.Constraint("Horizontal", 11))
sketch7.addConstraint(Sketcher.Constraint("Horizontal", 13))
sketch7.addConstraint(Sketcher.Constraint("Horizontal", 15))
sketch7.addConstraint(Sketcher.Constraint("Horizontal", 17))
sketch7.addConstraint(Sketcher.Constraint("Vertical", 18))
sketch7.addConstraint(Sketcher.Constraint("Equal", 4, 7))
sketch7.addConstraint(Sketcher.Constraint("Equal", 2, 9))
sketch7.addConstraint(Sketcher.Constraint("Equal", 9, 12))
sketch7.addConstraint(Sketcher.Constraint("Equal", 7, 14))
sketch7.addConstraint(Sketcher.Constraint("Equal", 12, 16))
sketch7.addConstraint(Sketcher.Constraint("Equal", 14, 19))
sketch7.addConstraint(Sketcher.Constraint("Horizontal", 9, 3, 12, 3))
sketch7.addConstraint(Sketcher.Constraint("Horizontal", 7, 3, 14, 3))
sketch7.addConstraint(Sketcher.Constraint("Horizontal", 2, 3, 16, 3))
sketch7.addConstraint(Sketcher.Constraint("Horizontal", 4, 3, 19, 3))
sketch7.addConstraint(Sketcher.Constraint("Vertical", 4, 3, 7, 3))
sketch7.addConstraint(Sketcher.Constraint("Vertical", 2, 3, 9, 3))
sketch7.addConstraint(Sketcher.Constraint("Vertical", 12, 3, 16, 3))
sketch7.addConstraint(Sketcher.Constraint("Vertical", 14, 3, 19, 3))
sketch7.addConstraint(Sketcher.Constraint("Vertical", 3, 2, 7, 2))
sketch7.addConstraint(Sketcher.Constraint("Equal", 5, 11))
sketch7.addConstraint(Sketcher.Constraint("Radius", 2, 3.0))
sketch7.addConstraint(Sketcher.Constraint("Radius", 4, 10.0))
sketch7.addConstraint(Sketcher.Constraint("DistanceX", 1, 2, 1, 1, 4.0))
sketch7.addConstraint(Sketcher.Constraint("DistanceY", 0, 1, 0, 2, 2.5))
sketch7.addConstraint(Sketcher.Constraint("DistanceY", 4, 3, -1, 1, 75.0))
sketch7.addConstraint(Sketcher.Constraint("DistanceY", 7, 3, -1, 1, 10.0))
sketch7.addConstraint(Sketcher.Constraint("DistanceX", 12, 3, 7, 3, 94.0))
sketch7.addConstraint(Sketcher.Constraint("DistanceX", 13, 2, -1, 1, 39.36854))
sketch7.setExpression("Constraints[48]", "Params.sketch7_radius")
sketch7.setExpression("Constraints[49]", "Params.sketch7_radius2")
sketch7.setExpression("Constraints[50]", "Params.sketch7_width")
sketch7.setExpression("Constraints[51]", "Params.sketch7_height")
pocket4 = body.newObject("PartDesign::Pocket", "Pocket003")
pocket4.Profile = sketch7
pocket4.setExpression("Length", "Params.pocket4_length")

# Sketch on XZ plane
sketch8 = body.newObject("Sketcher::SketchObject", "Sketch007")
sketch8.AttachmentSupport = (doc.getObject("XZ_Plane"), [""])
sketch8.MapMode = "FlatFace"
sketch8.AttachmentOffset = App.Placement(App.Vector(0, 0, -3), App.Rotation())
sketch8.addGeometry(Part.Circle(App.Vector(-36.001043, -9.5, 0), App.Vector(0, 0, 1), 1.4), False)
sketch8.addGeometry(Part.Circle(App.Vector(63.998957, -9.5, 0), App.Vector(0, 0, 1), 1.4), False)
sketch8.addGeometry(Part.Circle(App.Vector(63.998957, -75.5, 0), App.Vector(0, 0, 1), 1.4), False)
sketch8.addGeometry(Part.Circle(App.Vector(-36.001043, -75.5, 0), App.Vector(0, 0, 1), 1.4), False)
sketch8.addConstraint(Sketcher.Constraint("Equal", 0, 1))
sketch8.addConstraint(Sketcher.Constraint("Equal", 1, 2))
sketch8.addConstraint(Sketcher.Constraint("Equal", 2, 3))
sketch8.addConstraint(Sketcher.Constraint("Horizontal", 0, 3, 1, 3))
sketch8.addConstraint(Sketcher.Constraint("Horizontal", 2, 3, 3, 3))
sketch8.addConstraint(Sketcher.Constraint("Vertical", 1, 3, 2, 3))
sketch8.addConstraint(Sketcher.Constraint("Vertical", 0, 3, 3, 3))
sketch8.addConstraint(Sketcher.Constraint("Diameter", 0, 2.8))
sketch8.addConstraint(Sketcher.Constraint("DistanceX", 0, 3, 1, 3, 100.0))
sketch8.addConstraint(Sketcher.Constraint("DistanceY", 2, 3, 1, 3, 66.0))
sketch8.addConstraint(Sketcher.Constraint("DistanceY", 0, 3, -1, 1, 9.5))
sketch8.addConstraint(Sketcher.Constraint("DistanceX", 0, 3, -1, 1, 36.001043))
sketch8.setExpression("Constraints[7]", "Params.sketch8_diameter")
pocket5 = body.newObject("PartDesign::Pocket", "Pocket004")
pocket5.Profile = sketch8
pocket5.setExpression("Length", "Params.pocket5_length")

# Sketch on YZ plane
sketch9 = body.newObject("Sketcher::SketchObject", "Sketch008")
sketch9.AttachmentSupport = (doc.getObject("YZ_Plane"), [""])
sketch9.MapMode = "FlatFace"
sketch9.AttachmentOffset = App.Placement(App.Vector(0, 0, -40.001043), App.Rotation())
sketch9.addGeometry(Part.LineSegment(App.Vector(13, -63.5, 0), App.Vector(13, -53.5, 0)), False)
sketch9.addGeometry(Part.ArcOfCircle(Part.Circle(App.Vector(14, -53.5, 0), App.Vector(0, 0, 1), 1), math.radians(90), math.radians(180)), False)
sketch9.addGeometry(Part.LineSegment(App.Vector(14, -52.5, 0), App.Vector(19, -52.5, 0)), False)
sketch9.addGeometry(Part.ArcOfCircle(Part.Circle(App.Vector(19, -53.5, 0), App.Vector(0, 0, 1), 1), math.radians(0), math.radians(90)), False)
sketch9.addGeometry(Part.LineSegment(App.Vector(20, -53.5, 0), App.Vector(20, -63.5, 0)), False)
sketch9.addGeometry(Part.ArcOfCircle(Part.Circle(App.Vector(19, -63.5, 0), App.Vector(0, 0, 1), 1), math.radians(-90), math.radians(0)), False)
sketch9.addGeometry(Part.LineSegment(App.Vector(19, -64.5, 0), App.Vector(14, -64.5, 0)), False)
sketch9.addGeometry(Part.ArcOfCircle(Part.Circle(App.Vector(14, -63.5, 0), App.Vector(0, 0, 1), 1), math.radians(-180), math.radians(-90)), False)
sketch9.addConstraint(Sketcher.Constraint("Tangent", 0, 2, 1, 2))
sketch9.addConstraint(Sketcher.Constraint("Tangent", 1, 1, 2, 1))
sketch9.addConstraint(Sketcher.Constraint("Tangent", 2, 2, 3, 2))
sketch9.addConstraint(Sketcher.Constraint("Tangent", 3, 1, 4, 1))
sketch9.addConstraint(Sketcher.Constraint("Tangent", 4, 2, 5, 2))
sketch9.addConstraint(Sketcher.Constraint("Tangent", 5, 1, 6, 1))
sketch9.addConstraint(Sketcher.Constraint("Tangent", 6, 2, 7, 2))
sketch9.addConstraint(Sketcher.Constraint("Tangent", 7, 1, 0, 1))
sketch9.addConstraint(Sketcher.Constraint("Vertical", 0))
sketch9.addConstraint(Sketcher.Constraint("Horizontal", 2))
sketch9.addConstraint(Sketcher.Constraint("Vertical", 4))
sketch9.addConstraint(Sketcher.Constraint("Horizontal", 6))
sketch9.addConstraint(Sketcher.Constraint("Equal", 1, 3))
sketch9.addConstraint(Sketcher.Constraint("Equal", 3, 5))
sketch9.addConstraint(Sketcher.Constraint("Equal", 5, 7))
sketch9.addConstraint(Sketcher.Constraint("Radius", 1, 1.0))
sketch9.addConstraint(Sketcher.Constraint("DistanceX", 2, 1, 2, 2, 5.0))
sketch9.addConstraint(Sketcher.Constraint("DistanceY", 0, 1, 0, 2, 10.0))
sketch9.addConstraint(Sketcher.Constraint("DistanceX", -1, 1, 1, 3, 14.0))
sketch9.addConstraint(Sketcher.Constraint("DistanceY", 1, 3, -1, 1, 53.5))
sketch9.setExpression("Constraints[15]", "Params.sketch9_radius")
sketch9.setExpression("Constraints[16]", "Params.sketch9_width")
sketch9.setExpression("Constraints[17]", "Params.sketch9_height")
pocket6 = body.newObject("PartDesign::Pocket", "Pocket005")
pocket6.Profile = sketch9
pocket6.setExpression("Length", "Params.pocket6_length")
pocket6.Reversed = True

# Sketch on XZ plane
sketch10 = body.newObject("Sketcher::SketchObject", "Sketch009")
sketch10.AttachmentSupport = (doc.getObject("XZ_Plane"), [""])
sketch10.MapMode = "FlatFace"
sketch10.AttachmentOffset = App.Placement(App.Vector(0, 0, -2), App.Rotation())
sketch10.addGeometry(Part.Circle(App.Vector(11.884741, -32, 0), App.Vector(0, 0, 1), 4.52842), False)
sketch10.addConstraint(Sketcher.Constraint("DistanceY", 0, 3, -1, 1, 32.0))
sketch10.addConstraint(Sketcher.Constraint("Diameter", 0, 9.056839))
sketch10.addConstraint(Sketcher.Constraint("DistanceX", -1, 1, 0, 3, 11.884741))
pocket7 = body.newObject("PartDesign::Pocket", "Pocket006")
pocket7.Profile = sketch10
pocket7.setExpression("Length", "Params.pocket7_length")

# Sketch on XZ plane
sketch11 = body.newObject("Sketcher::SketchObject", "Sketch010")
sketch11.AttachmentSupport = (doc.getObject("XZ_Plane"), [""])
sketch11.MapMode = "FlatFace"
sketch11.AttachmentOffset = App.Placement(App.Vector(0, 0, -2), App.Rotation())
sketch11.addGeometry(Part.Circle(App.Vector(11.884741, -23, 0), App.Vector(0, 0, 1), 1.5), False)
sketch11.addConstraint(Sketcher.Constraint("Diameter", 0, 3.0))
sketch11.addConstraint(Sketcher.Constraint("DistanceY", 0, 3, -1, 1, 23.0))
sketch11.addConstraint(Sketcher.Constraint("DistanceX", -1, 1, 0, 3, 11.884741))
sketch11.setExpression("Constraints[0]", "Params.sketch11_diameter")
pocket8 = body.newObject("PartDesign::Pocket", "Pocket007")
pocket8.Profile = sketch11
pocket8.setExpression("Length", "Params.pocket8_length")

# Sketch on XY plane
sketch12 = body.newObject("Sketcher::SketchObject", "Sketch011")
sketch12.AttachmentSupport = (doc.getObject("XY_Plane"), [""])
sketch12.MapMode = "FlatFace"
sketch12.addGeometry(Part.LineSegment(App.Vector(0.961039, 17.276987, 0), App.Vector(-7.038961, 17.276987, 0)), False)
sketch12.addGeometry(Part.ArcOfCircle(Part.Circle(App.Vector(-7.038961, 16.276987, 0), App.Vector(0, 0, 1), 1), math.radians(90), math.radians(180)), False)
sketch12.addGeometry(Part.LineSegment(App.Vector(-8.038961, 16.276987, 0), App.Vector(-8.038961, 15.276987, 0)), False)
sketch12.addGeometry(Part.ArcOfCircle(Part.Circle(App.Vector(-7.038961, 15.276987, 0), App.Vector(0, 0, 1), 1), math.radians(-180), math.radians(-90)), False)
sketch12.addGeometry(Part.LineSegment(App.Vector(-7.038961, 14.276987, 0), App.Vector(0.961039, 14.276987, 0)), False)
sketch12.addGeometry(Part.ArcOfCircle(Part.Circle(App.Vector(0.961039, 15.276987, 0), App.Vector(0, 0, 1), 1), math.radians(-90), math.radians(0)), False)
sketch12.addGeometry(Part.LineSegment(App.Vector(1.961039, 15.276987, 0), App.Vector(1.961039, 16.276987, 0)), False)
sketch12.addGeometry(Part.ArcOfCircle(Part.Circle(App.Vector(0.961039, 16.276987, 0), App.Vector(0, 0, 1), 1), math.radians(0), math.radians(90)), False)
sketch12.addConstraint(Sketcher.Constraint("Tangent", 0, 2, 1, 1))
sketch12.addConstraint(Sketcher.Constraint("Tangent", 1, 2, 2, 1))
sketch12.addConstraint(Sketcher.Constraint("Tangent", 2, 2, 3, 1))
sketch12.addConstraint(Sketcher.Constraint("Tangent", 3, 2, 4, 1))
sketch12.addConstraint(Sketcher.Constraint("Tangent", 4, 2, 5, 1))
sketch12.addConstraint(Sketcher.Constraint("Tangent", 5, 2, 6, 1))
sketch12.addConstraint(Sketcher.Constraint("Tangent", 6, 2, 7, 1))
sketch12.addConstraint(Sketcher.Constraint("Tangent", 7, 2, 0, 1))
sketch12.addConstraint(Sketcher.Constraint("Horizontal", 0))
sketch12.addConstraint(Sketcher.Constraint("Vertical", 2))
sketch12.addConstraint(Sketcher.Constraint("Horizontal", 4))
sketch12.addConstraint(Sketcher.Constraint("Vertical", 6))
sketch12.addConstraint(Sketcher.Constraint("Equal", 1, 3))
sketch12.addConstraint(Sketcher.Constraint("Equal", 3, 5))
sketch12.addConstraint(Sketcher.Constraint("Equal", 5, 7))
sketch12.addConstraint(Sketcher.Constraint("Radius", 1, 1.0))
sketch12.addConstraint(Sketcher.Constraint("DistanceX", 0, 2, 0, 1, 8.0))
sketch12.addConstraint(Sketcher.Constraint("DistanceY", 2, 2, 2, 1, 1.0))
sketch12.addConstraint(Sketcher.Constraint("DistanceX", 1, 3, -1, 1, 7.038961))
sketch12.addConstraint(Sketcher.Constraint("DistanceY", -1, 1, 1, 3, 16.276987))
sketch12.setExpression("Constraints[15]", "Params.sketch12_radius")
sketch12.setExpression("Constraints[16]", "Params.sketch12_width")
sketch12.setExpression("Constraints[17]", "Params.sketch12_height")
pocket9 = body.newObject("PartDesign::Pocket", "Pocket008")
pocket9.Profile = sketch12
pocket9.setExpression("Length", "Params.pocket9_length")

doc.recompute()
